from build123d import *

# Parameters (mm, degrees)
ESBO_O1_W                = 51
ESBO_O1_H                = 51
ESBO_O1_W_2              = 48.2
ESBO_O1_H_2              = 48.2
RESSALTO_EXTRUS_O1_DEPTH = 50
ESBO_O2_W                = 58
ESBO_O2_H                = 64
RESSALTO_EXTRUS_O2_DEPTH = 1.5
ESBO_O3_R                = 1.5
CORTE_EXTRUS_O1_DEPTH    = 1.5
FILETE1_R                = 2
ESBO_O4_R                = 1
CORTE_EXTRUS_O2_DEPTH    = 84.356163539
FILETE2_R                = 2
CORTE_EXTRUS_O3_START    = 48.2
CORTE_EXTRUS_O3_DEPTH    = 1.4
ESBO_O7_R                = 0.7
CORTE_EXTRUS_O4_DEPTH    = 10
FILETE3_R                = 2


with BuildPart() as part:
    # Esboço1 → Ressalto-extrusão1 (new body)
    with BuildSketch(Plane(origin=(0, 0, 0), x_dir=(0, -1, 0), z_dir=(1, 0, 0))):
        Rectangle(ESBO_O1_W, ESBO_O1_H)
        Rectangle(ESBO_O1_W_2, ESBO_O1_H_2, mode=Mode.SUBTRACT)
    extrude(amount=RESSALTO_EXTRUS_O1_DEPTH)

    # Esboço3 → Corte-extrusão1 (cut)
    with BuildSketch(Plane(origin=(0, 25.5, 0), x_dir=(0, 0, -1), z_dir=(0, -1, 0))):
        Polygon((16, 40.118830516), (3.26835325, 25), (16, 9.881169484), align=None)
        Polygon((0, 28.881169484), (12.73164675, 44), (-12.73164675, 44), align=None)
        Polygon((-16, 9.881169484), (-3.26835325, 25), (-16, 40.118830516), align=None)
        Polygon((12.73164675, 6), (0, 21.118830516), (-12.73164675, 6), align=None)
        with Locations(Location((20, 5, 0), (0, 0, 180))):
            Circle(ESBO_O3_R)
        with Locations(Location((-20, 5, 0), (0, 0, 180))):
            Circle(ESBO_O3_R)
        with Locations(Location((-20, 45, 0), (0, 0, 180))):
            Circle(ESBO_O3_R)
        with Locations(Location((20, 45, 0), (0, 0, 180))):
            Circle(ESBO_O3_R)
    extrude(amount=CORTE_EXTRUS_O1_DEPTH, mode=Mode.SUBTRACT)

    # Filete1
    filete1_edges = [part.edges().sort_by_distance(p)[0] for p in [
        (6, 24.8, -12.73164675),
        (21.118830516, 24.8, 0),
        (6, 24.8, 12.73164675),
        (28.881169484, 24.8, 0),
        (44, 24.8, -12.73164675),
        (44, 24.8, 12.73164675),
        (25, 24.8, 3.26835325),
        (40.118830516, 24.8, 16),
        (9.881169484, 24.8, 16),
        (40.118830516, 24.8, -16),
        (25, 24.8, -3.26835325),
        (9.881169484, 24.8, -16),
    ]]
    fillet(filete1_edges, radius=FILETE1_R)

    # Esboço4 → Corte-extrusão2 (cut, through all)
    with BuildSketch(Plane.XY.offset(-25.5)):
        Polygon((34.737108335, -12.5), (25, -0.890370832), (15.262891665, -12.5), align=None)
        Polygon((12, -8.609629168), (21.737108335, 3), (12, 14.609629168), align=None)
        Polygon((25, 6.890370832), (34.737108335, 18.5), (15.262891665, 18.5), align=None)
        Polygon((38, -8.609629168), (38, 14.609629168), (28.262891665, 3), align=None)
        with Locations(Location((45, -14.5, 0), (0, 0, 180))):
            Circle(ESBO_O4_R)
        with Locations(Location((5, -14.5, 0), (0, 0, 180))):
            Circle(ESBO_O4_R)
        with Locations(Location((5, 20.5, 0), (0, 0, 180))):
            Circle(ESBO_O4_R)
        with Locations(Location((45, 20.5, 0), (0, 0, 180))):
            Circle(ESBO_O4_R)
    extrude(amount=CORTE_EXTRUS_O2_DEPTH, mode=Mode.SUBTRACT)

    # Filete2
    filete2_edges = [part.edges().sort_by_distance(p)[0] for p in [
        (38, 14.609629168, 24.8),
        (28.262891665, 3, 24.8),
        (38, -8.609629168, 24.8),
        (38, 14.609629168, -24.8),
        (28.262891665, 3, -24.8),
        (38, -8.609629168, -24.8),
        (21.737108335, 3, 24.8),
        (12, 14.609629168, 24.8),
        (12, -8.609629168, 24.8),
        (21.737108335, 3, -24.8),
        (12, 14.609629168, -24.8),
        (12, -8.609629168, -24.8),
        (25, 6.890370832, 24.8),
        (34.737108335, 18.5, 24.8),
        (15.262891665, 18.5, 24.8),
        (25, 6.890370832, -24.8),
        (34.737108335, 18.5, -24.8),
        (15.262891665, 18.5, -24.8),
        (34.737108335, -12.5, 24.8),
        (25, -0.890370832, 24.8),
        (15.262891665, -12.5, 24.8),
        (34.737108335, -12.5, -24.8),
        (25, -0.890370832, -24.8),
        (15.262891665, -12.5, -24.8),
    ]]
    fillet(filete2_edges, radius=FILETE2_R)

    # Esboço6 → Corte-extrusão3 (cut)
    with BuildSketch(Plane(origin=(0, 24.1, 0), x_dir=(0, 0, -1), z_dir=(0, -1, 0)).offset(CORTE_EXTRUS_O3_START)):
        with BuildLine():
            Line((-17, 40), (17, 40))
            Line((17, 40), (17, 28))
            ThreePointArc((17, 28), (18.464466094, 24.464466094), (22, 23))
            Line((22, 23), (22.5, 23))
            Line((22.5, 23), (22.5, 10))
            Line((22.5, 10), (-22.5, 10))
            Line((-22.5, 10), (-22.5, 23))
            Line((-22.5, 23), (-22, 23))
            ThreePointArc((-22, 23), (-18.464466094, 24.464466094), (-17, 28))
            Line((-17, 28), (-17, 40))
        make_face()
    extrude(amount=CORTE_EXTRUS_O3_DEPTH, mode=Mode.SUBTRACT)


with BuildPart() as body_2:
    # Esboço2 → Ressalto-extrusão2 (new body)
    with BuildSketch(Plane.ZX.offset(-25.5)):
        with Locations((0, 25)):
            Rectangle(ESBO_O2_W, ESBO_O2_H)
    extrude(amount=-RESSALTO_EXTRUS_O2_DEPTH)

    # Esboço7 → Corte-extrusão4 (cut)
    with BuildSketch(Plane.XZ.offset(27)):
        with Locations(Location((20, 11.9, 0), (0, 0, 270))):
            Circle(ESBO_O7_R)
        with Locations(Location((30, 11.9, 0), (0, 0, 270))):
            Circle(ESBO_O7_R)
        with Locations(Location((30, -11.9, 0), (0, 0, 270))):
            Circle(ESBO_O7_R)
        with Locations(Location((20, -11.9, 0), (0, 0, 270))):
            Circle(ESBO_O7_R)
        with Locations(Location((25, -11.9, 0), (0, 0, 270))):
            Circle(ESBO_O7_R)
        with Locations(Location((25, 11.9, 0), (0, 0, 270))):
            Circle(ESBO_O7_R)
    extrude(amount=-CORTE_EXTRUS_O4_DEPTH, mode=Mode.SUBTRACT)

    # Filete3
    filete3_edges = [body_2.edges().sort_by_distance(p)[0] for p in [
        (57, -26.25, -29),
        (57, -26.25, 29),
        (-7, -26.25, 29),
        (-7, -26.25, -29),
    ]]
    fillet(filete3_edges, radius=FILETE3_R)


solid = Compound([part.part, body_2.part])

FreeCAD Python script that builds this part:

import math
import FreeCAD as App
import Part
import Sketcher

V = App.Vector


def edges_at(feature, points):
    """Names of the edges that pass closest to the given points."""
    edges = feature.Shape.Edges
    near = lambda p: min(range(len(edges)), key=lambda i: edges[i].distToShape(Part.Vertex(*p))[0])
    return sorted({f"Edge{near(p) + 1}" for p in points})


def add_polygon(sketch, points):
    """Adds a closed chain of lines whose ends are joined by coincident constraints."""
    first, n = sketch.GeometryCount, len(points)
    for a, b in zip(points, points[1:] + points[:1]):
        sketch.addGeometry(Part.LineSegment(App.Vector(*a, 0), App.Vector(*b, 0)), False)
    for i in range(n):
        sketch.addConstraint(Sketcher.Constraint("Coincident", first + i, 2, first + (i + 1) % n, 1))

doc = App.newDocument("Part")
body = doc.addObject("PartDesign::Body", "Body")

# Sketch on YZ plane
sketch1 = doc.addObject("Sketcher::SketchObject", "Sketch")
body.addObject(sketch1)
sketch1.AttachmentSupport = (doc.YZ_Plane, [""])
sketch1.MapMode = "FlatFace"
add_polygon(sketch1, [(26, -26), (26, 26), (-26, 26), (-26, -26)])  # lines 0-3
add_polygon(sketch1, [(-24, 24), (24, 24), (24, -24), (-24, -24)])  # lines 4-7
sketch1.addConstraint([
    Sketcher.Constraint("Vertical", 0),
    Sketcher.Constraint("Horizontal", 1),
    Sketcher.Constraint("Vertical", 2),
    Sketcher.Constraint("Horizontal", 3),
    Sketcher.Constraint("Horizontal", 4),
    Sketcher.Constraint("Vertical", 5),
    Sketcher.Constraint("Horizontal", 6),
    Sketcher.Constraint("Vertical", 7),
    Sketcher.Constraint("Symmetric", 0, 2, 2, 2, -1, 1),
    Sketcher.Constraint("Symmetric", 4, 2, 6, 2, -1, 1),
    Sketcher.Constraint("Equal", 3, 0),
    Sketcher.Constraint("Equal", 6, 5),
    Sketcher.Constraint("DistanceX", 1, 2, 1, 1, 51.0),
    Sketcher.Constraint("DistanceX", 4, 1, 4, 2, 48.2),
])
pad1 = doc.addObject("PartDesign::Pad", "Pad")
body.addObject(pad1)
pad1.Profile = sketch1
pad1.Length = 50

# Sketch on XZ plane
sketch2 = doc.addObject("Sketcher::SketchObject", "Sketch001")
body.addObject(sketch2)
sketch2.AttachmentSupport = (doc.XZ_Plane, [""])
sketch2.MapMode = "FlatFace"
sketch2.AttachmentOffset = App.Placement(V(0, 0, -25.5), App.Rotation())
add_polygon(sketch2, [(40.1, -16), (25, -3.3), (9.9, -16)])  # lines 0-2
add_polygon(sketch2, [(28.9, 0), (44, -12.7), (44, 12.7)])  # lines 3-5
add_polygon(sketch2, [(9.9, 16), (25, 3.3), (40.1, 16)])  # lines 6-8
add_polygon(sketch2, [(6, -12.7), (21.1, 0), (6, 12.7)])  # lines 9-11
sketch2.addGeometry(Part.Circle(V(5, -20, 0), V(0, 0, 1), 1.5), False)  # 12
sketch2.addGeometry(Part.Circle(V(5, 20, 0), V(0, 0, 1), 1.5), False)  # 13
sketch2.addGeometry(Part.Circle(V(45, 20, 0), V(0, 0, 1), 1.5), False)  # 14
sketch2.addGeometry(Part.Circle(V(45, -20, 0), V(0, 0, 1), 1.5), False)  # 15
sketch2.addConstraint([
    Sketcher.Constraint("Horizontal", 2),
    Sketcher.Constraint("Vertical", 4),
    Sketcher.Constraint("Horizontal", 8),
    Sketcher.Constraint("Vertical", 11),
    Sketcher.Constraint("Equal", 12, 13),
    Sketcher.Constraint("Equal", 13, 14),
    Sketcher.Constraint("Equal", 14, 15),
    Sketcher.Constraint("Symmetric", 12, 3, 13, 3, -1),
    Sketcher.Constraint("Symmetric", 14, 3, 15, 3, -1),
    Sketcher.Constraint("Symmetric", 0, 2, 6, 2, -1),
    Sketcher.Constraint("Symmetric", 2, 2, 7, 2, -1),
    Sketcher.Constraint("PointOnObject", 5, 2, -1),
    Sketcher.Constraint("PointOnObject", 9, 2, -1),
    Sketcher.Constraint("Parallel", 0, 3),
    Sketcher.Constraint("Parallel", 1, 5),
    Sketcher.Constraint("Parallel", 3, 6),
    Sketcher.Constraint("Parallel", 5, 7),
    Sketcher.Constraint("Parallel", 7, 9),
    Sketcher.Constraint("Parallel", 6, 10),
    Sketcher.Constraint("Horizontal", 13, 3, 14, 3),
    Sketcher.Constraint("Horizontal", 4, 2, 10, 2),
    Sketcher.Constraint("Equal", 1, 3),
    Sketcher.Constraint("Diameter", 12, 3.0),
    Sketcher.Constraint("DistanceX", -1, 1, 12, 3, 5.0),
    Sketcher.Constraint("DistanceY", 12, 3, -1, 1, 20.0),
    Sketcher.Constraint("DistanceX", -1, 1, 14, 3, 45.0),
    Sketcher.Constraint("DistanceX", -1, 1, 0, 2, 25.0),
    Sketcher.Constraint("DistanceY", 1, 2, -1, 1, 16.0),
    Sketcher.Constraint("DistanceX", -1, 1, 3, 2, 44.0),
    Sketcher.Constraint("DistanceX", -1, 1, 10, 2, 6.0),
    Sketcher.Constraint("DistanceX", 2, 1, 2, 2, 30.237661),
    Sketcher.Constraint("Distance", 0, 19.765472),
])
pocket1 = doc.addObject("PartDesign::Pocket", "Pocket")
body.addObject(pocket1)
pocket1.Profile = sketch2
pocket1.Length = 1.5
pocket1.Reversed = True
doc.recompute()

fillet = doc.addObject("PartDesign::Fillet", "Fillet")
body.addObject(fillet)
fillet.Base = (pocket1, edges_at(pocket1, [
    (6, 24.8, -12.732),
    (21.119, 24.8, 0),
    (6, 24.8, 12.732),
    (28.881, 24.8, 0),
    (44, 24.8, -12.732),
    (44, 24.8, 12.732),
    (25, 24.8, 3.268),
    (40.119, 24.8, 16),
    (9.881, 24.8, 16),
    (40.119, 24.8, -16),
    (25, 24.8, -3.268),
    (9.881, 24.8, -16),
]))
fillet.Radius = 2

# Sketch on XY plane
sketch3 = doc.addObject("Sketcher::SketchObject", "Sketch002")
body.addObject(sketch3)
sketch3.AttachmentSupport = (doc.XY_Plane, [""])
sketch3.MapMode = "FlatFace"
sketch3.AttachmentOffset = App.Placement(V(0, 0, -25.5), App.Rotation())
add_polygon(sketch3, [(34.7, -12.5), (25, -0.9), (15.3, -12.5)])  # lines 0-2
add_polygon(sketch3, [(12, -8.6), (21.7, 3), (12, 14.6)])  # lines 3-5
add_polygon(sketch3, [(25, 6.9), (34.7, 18.5), (15.3, 18.5)])  # lines 6-8
add_polygon(sketch3, [(38, -8.6), (38, 14.6), (28.3, 3)])  # lines 9-11
sketch3.addGeometry(Part.Circle(V(45, -14.5, 0), V(0, 0, 1), 1), False)  # 12
sketch3.addGeometry(Part.Circle(V(5, -14.5, 0), V(0, 0, 1), 1), False)  # 13
sketch3.addGeometry(Part.Circle(V(5, 20.5, 0), V(0, 0, 1), 1), False)  # 14
sketch3.addGeometry(Part.Circle(V(45, 20.5, 0), V(0, 0, 1), 1), False)  # 15
sketch3.addConstraint([
    Sketcher.Constraint("Horizontal", 2),
    Sketcher.Constraint("Vertical", 5),
    Sketcher.Constraint("Horizontal", 7),
    Sketcher.Constraint("Vertical", 9),
    Sketcher.Constraint("Equal", 12, 13),
    Sketcher.Constraint("Equal", 13, 14),
    Sketcher.Constraint("Equal", 14, 15),
    Sketcher.Constraint("Parallel", 1, 3),
    Sketcher.Constraint("Parallel", 0, 4),
    Sketcher.Constraint("Parallel", 3, 6),
    Sketcher.Constraint("Parallel", 4, 8),
    Sketcher.Constraint("Parallel", 6, 10),
    Sketcher.Constraint("Parallel", 8, 11),
    Sketcher.Constraint("Horizontal", 12, 3, 13, 3),
    Sketcher.Constraint("Horizontal", 14, 3, 15, 3),
    Sketcher.Constraint("Horizontal", 4, 2, 9, 2),
    Sketcher.Constraint("Horizontal", 3, 2, 10, 2),
    Sketcher.Constraint("Horizontal", 5, 2, 11, 2),
    Sketcher.Constraint("Vertical", 13, 3, 14, 3),
    Sketcher.Constraint("Vertical", 12, 3, 15, 3),
    Sketcher.Constraint("Vertical", 2, 2, 6, 2),
    Sketcher.Constraint("Vertical", 1, 2, 7, 2),
    Sketcher.Constraint("Equal", 1, 3),
    Sketcher.Constraint("Diameter", 12, 2.0),
    Sketcher.Constraint("DistanceX", -1, 1, 12, 3, 45.0),
    Sketcher.Constraint("DistanceX", -1, 1, 13, 3, 5.0),
    Sketcher.Constraint("DistanceX", -1, 1, 0, 2, 25.0),
    Sketcher.Constraint("DistanceY", -1, 1, 3, 2, 3.0),
    Sketcher.Constraint("DistanceX", -1, 1, 4, 2, 12.0),
    Sketcher.Constraint("DistanceX", -1, 1, 9, 2, 38.0),
    Sketcher.Constraint("DistanceY", 13, 3, 14, 3, 35.0),
    Sketcher.Constraint("DistanceY", 13, 3, 1, 2, 2.0),
    Sketcher.Constraint("DistanceY", 6, 2, 15, 3, 2.0),
    Sketcher.Constraint("DistanceY", 12, 3, -1, 1, 14.5),
    Sketcher.Constraint("DistanceY", 5, 2, 5, 1, 23.219258),
    Sketcher.Constraint("DistanceX", 2, 1, 2, 2, 19.474217),
])
pocket2 = doc.addObject("PartDesign::Pocket", "Pocket001")
body.addObject(pocket2)
pocket2.Profile = sketch3
pocket2.Type = "ThroughAll"
pocket2.Reversed = True
doc.recompute()

fillet2 = doc.addObject("PartDesign::Fillet", "Fillet001")
body.addObject(fillet2)
fillet2.Base = (pocket2, edges_at(pocket2, [
    (38, 14.61, 24.8),
    (28.263, 3, 24.8),
    (38, -8.61, 24.8),
    (38, 14.61, -24.8),
    (28.263, 3, -24.8),
    (38, -8.61, -24.8),
    (21.737, 3, 24.8),
    (12, 14.61, 24.8),
    (12, -8.61, 24.8),
    (21.737, 3, -24.8),
    (12, 14.61, -24.8),
    (12, -8.61, -24.8),
    (25, 6.89, 24.8),
    (34.737, 18.5, 24.8),
    (15.263, 18.5, 24.8),
    (25, 6.89, -24.8),
    (34.737, 18.5, -24.8),
    (15.263, 18.5, -24.8),
    (34.737, -12.5, 24.8),
    (25, -0.89, 24.8),
    (15.263, -12.5, 24.8),
    (34.737, -12.5, -24.8),
    (25, -0.89, -24.8),
    (15.263, -12.5, -24.8),
]))
fillet2.Radius = 2

# Sketch on XZ plane
sketch4 = doc.addObject("Sketcher::SketchObject", "Sketch003")
body.addObject(sketch4)
sketch4.AttachmentSupport = (doc.XZ_Plane, [""])
sketch4.MapMode = "FlatFace"
sketch4.AttachmentOffset = App.Placement(V(0, 0, 24.1), App.Rotation())
sketch4.addGeometry([
    Part.LineSegment(V(40, -17, 0), V(40, 17, 0)),  # 0
    Part.LineSegment(V(40, 17, 0), V(28, 17, 0)),  # 1
    Part.ArcOfCircle(Part.Circle(V(28, 22, 0), V(0, 0, 1), 5), math.radians(180), math.radians(270)),  # 2
    Part.LineSegment(V(23, 22, 0), V(23, 22.5, 0)),  # 3
    Part.LineSegment(V(23, 22.5, 0), V(10, 22.5, 0)),  # 4
    Part.LineSegment(V(10, 22.5, 0), V(10, -22.5, 0)),  # 5
    Part.LineSegment(V(10, -22.5, 0), V(23, -22.5, 0)),  # 6
    Part.LineSegment(V(23, -22.5, 0), V(23, -22, 0)),  # 7
    Part.ArcOfCircle(Part.Circle(V(28, -22, 0), V(0, 0, 1), 5), math.radians(90), math.radians(180)),  # 8
    Part.LineSegment(V(28, -17, 0), V(40, -17, 0)),  # 9
], False)
sketch4.addConstraint([
    Sketcher.Constraint("Coincident", 0, 2, 1, 1),
    Sketcher.Constraint("Tangent", 1, 2, 2, 2),
    Sketcher.Constraint("Tangent", 2, 1, 3, 1),
    Sketcher.Constraint("Coincident", 3, 2, 4, 1),
    Sketcher.Constraint("Coincident", 4, 2, 5, 1),
    Sketcher.Constraint("Coincident", 5, 2, 6, 1),
    Sketcher.Constraint("Coincident", 6, 2, 7, 1),
    Sketcher.Constraint("Tangent", 7, 2, 8, 2),
    Sketcher.Constraint("Tangent", 8, 1, 9, 1),
    Sketcher.Constraint("Coincident", 9, 2, 0, 1),
    Sketcher.Constraint("Vertical", 0),
    Sketcher.Constraint("Horizontal", 1),
    Sketcher.Constraint("Vertical", 3),
    Sketcher.Constraint("Horizontal", 4),
    Sketcher.Constraint("Vertical", 5),
    Sketcher.Constraint("Horizontal", 6),
    Sketcher.Constraint("Vertical", 7),
    Sketcher.Constraint("Horizontal", 9),
    Sketcher.Constraint("Equal", 2, 8),
    Sketcher.Constraint("Symmetric", 2, 3, 8, 3, -1),
    Sketcher.Constraint("Equal", 3, 7),
    Sketcher.Constraint("Radius", 2, 5.0),
    Sketcher.Constraint("DistanceX", 1, 2, 1, 1, 12.0),
    Sketcher.Constraint("DistanceX", 4, 2, 4, 1, 13.0),
    Sketcher.Constraint("DistanceY", 0, 1, 0, 2, 34.0),
    Sketcher.Constraint("DistanceY", 5, 2, 5, 1, 45.0),
    Sketcher.Constraint("DistanceX", -1, 1, 2, 3, 28.0),
])
pocket3 = doc.addObject("PartDesign::Pocket", "Pocket002")
body.addObject(pocket3)
pocket3.Profile = sketch4
pocket3.Length = 1.4
pocket3.Reversed = True
body2 = doc.addObject("PartDesign::Body", "Body001")

# Sketch on XZ plane
sketch5 = doc.addObject("Sketcher::SketchObject", "Sketch004")
body2.addObject(sketch5)
sketch5.AttachmentSupport = (doc.getObject("XZ_Plane001"), [""])
sketch5.MapMode = "FlatFace"
sketch5.AttachmentOffset = App.Placement(V(0, 0, 25.5), App.Rotation())
add_polygon(sketch5, [(57, -29), (-7, -29), (-7, 29), (57, 29)])  # lines 0-3
sketch5.addConstraint([
    Sketcher.Constraint("Horizontal", 0),
    Sketcher.Constraint("Vertical", 1),
    Sketcher.Constraint("Horizontal", 2),
    Sketcher.Constraint("Vertical", 3),
    Sketcher.Constraint("DistanceX", 0, 2, 0, 1, 64.0),
    Sketcher.Constraint("DistanceY", 1, 1, 1, 2, 58.0),
    Sketcher.Constraint("DistanceX", 0, 2, -1, 1, 7.0),
    Sketcher.Constraint("DistanceY", 0, 2, -1, 1, 29.0),
])
pad2 = doc.addObject("PartDesign::Pad", "Pad001")
body2.addObject(pad2)
pad2.Profile = sketch5
pad2.Length = 1.5

# Sketch on XZ plane
sketch6 = doc.addObject("Sketcher::SketchObject", "Sketch005")
body2.addObject(sketch6)
sketch6.AttachmentSupport = (doc.getObject("XZ_Plane001"), [""])
sketch6.MapMode = "FlatFace"
sketch6.AttachmentOffset = App.Placement(V(0, 0, 27), App.Rotation())
sketch6.addGeometry([
    Part.Circle(V(20, 11.9, 0), V(0, 0, 1), 0.7),  # 0
    Part.Circle(V(30, 11.9, 0), V(0, 0, 1), 0.7),  # 1
    Part.Circle(V(30, -11.9, 0), V(0, 0, 1), 0.7),  # 2
    Part.Circle(V(20, -11.9, 0), V(0, 0, 1), 0.7),  # 3
    Part.Circle(V(25, -11.9, 0), V(0, 0, 1), 0.7),  # 4
    Part.Circle(V(25, 11.9, 0), V(0, 0, 1), 0.7),  # 5
], False)
sketch6.addConstraint([
    Sketcher.Constraint("Equal", 0, 1),
    Sketcher.Constraint("Equal", 1, 2),
    Sketcher.Constraint("Equal", 2, 3),
    Sketcher.Constraint("Equal", 3, 4),
    Sketcher.Constraint("Equal", 4, 5),
    Sketcher.Constraint("Symmetric", 1, 3, 2, 3, -1),
    Sketcher.Constraint("Symmetric", 0, 3, 3, 3, -1),
    Sketcher.Constraint("Symmetric", 4, 3, 5, 3, -1),
    Sketcher.Constraint("Horizontal", 0, 3, 1, 3),
    Sketcher.Constraint("Horizontal", 3, 3, 4, 3),
    Sketcher.Constraint("Diameter", 0, 1.4),
    Sketcher.Constraint("DistanceX", -1, 1, 0, 3, 20.0),
    Sketcher.Constraint("DistanceX", -1, 1, 1, 3, 30.0),
    Sketcher.Constraint("DistanceX", -1, 1, 4, 3, 25.0),
    Sketcher.Constraint("DistanceY", -1, 1, 0, 3, 11.9),
])
pocket4 = doc.addObject("PartDesign::Pocket", "Pocket003")
body2.addObject(pocket4)
pocket4.Profile = sketch6
pocket4.Length = 10
doc.recompute()

fillet3 = doc.addObject("PartDesign::Fillet", "Fillet002")
body2.addObject(fillet3)
fillet3.Base = (pocket4, edges_at(pocket4, [
    (57, -26.25, -29),
    (57, -26.25, 29),
    (-7, -26.25, 29),
    (-7, -26.25, -29),
]))
fillet3.Radius = 2

doc.recompute()
